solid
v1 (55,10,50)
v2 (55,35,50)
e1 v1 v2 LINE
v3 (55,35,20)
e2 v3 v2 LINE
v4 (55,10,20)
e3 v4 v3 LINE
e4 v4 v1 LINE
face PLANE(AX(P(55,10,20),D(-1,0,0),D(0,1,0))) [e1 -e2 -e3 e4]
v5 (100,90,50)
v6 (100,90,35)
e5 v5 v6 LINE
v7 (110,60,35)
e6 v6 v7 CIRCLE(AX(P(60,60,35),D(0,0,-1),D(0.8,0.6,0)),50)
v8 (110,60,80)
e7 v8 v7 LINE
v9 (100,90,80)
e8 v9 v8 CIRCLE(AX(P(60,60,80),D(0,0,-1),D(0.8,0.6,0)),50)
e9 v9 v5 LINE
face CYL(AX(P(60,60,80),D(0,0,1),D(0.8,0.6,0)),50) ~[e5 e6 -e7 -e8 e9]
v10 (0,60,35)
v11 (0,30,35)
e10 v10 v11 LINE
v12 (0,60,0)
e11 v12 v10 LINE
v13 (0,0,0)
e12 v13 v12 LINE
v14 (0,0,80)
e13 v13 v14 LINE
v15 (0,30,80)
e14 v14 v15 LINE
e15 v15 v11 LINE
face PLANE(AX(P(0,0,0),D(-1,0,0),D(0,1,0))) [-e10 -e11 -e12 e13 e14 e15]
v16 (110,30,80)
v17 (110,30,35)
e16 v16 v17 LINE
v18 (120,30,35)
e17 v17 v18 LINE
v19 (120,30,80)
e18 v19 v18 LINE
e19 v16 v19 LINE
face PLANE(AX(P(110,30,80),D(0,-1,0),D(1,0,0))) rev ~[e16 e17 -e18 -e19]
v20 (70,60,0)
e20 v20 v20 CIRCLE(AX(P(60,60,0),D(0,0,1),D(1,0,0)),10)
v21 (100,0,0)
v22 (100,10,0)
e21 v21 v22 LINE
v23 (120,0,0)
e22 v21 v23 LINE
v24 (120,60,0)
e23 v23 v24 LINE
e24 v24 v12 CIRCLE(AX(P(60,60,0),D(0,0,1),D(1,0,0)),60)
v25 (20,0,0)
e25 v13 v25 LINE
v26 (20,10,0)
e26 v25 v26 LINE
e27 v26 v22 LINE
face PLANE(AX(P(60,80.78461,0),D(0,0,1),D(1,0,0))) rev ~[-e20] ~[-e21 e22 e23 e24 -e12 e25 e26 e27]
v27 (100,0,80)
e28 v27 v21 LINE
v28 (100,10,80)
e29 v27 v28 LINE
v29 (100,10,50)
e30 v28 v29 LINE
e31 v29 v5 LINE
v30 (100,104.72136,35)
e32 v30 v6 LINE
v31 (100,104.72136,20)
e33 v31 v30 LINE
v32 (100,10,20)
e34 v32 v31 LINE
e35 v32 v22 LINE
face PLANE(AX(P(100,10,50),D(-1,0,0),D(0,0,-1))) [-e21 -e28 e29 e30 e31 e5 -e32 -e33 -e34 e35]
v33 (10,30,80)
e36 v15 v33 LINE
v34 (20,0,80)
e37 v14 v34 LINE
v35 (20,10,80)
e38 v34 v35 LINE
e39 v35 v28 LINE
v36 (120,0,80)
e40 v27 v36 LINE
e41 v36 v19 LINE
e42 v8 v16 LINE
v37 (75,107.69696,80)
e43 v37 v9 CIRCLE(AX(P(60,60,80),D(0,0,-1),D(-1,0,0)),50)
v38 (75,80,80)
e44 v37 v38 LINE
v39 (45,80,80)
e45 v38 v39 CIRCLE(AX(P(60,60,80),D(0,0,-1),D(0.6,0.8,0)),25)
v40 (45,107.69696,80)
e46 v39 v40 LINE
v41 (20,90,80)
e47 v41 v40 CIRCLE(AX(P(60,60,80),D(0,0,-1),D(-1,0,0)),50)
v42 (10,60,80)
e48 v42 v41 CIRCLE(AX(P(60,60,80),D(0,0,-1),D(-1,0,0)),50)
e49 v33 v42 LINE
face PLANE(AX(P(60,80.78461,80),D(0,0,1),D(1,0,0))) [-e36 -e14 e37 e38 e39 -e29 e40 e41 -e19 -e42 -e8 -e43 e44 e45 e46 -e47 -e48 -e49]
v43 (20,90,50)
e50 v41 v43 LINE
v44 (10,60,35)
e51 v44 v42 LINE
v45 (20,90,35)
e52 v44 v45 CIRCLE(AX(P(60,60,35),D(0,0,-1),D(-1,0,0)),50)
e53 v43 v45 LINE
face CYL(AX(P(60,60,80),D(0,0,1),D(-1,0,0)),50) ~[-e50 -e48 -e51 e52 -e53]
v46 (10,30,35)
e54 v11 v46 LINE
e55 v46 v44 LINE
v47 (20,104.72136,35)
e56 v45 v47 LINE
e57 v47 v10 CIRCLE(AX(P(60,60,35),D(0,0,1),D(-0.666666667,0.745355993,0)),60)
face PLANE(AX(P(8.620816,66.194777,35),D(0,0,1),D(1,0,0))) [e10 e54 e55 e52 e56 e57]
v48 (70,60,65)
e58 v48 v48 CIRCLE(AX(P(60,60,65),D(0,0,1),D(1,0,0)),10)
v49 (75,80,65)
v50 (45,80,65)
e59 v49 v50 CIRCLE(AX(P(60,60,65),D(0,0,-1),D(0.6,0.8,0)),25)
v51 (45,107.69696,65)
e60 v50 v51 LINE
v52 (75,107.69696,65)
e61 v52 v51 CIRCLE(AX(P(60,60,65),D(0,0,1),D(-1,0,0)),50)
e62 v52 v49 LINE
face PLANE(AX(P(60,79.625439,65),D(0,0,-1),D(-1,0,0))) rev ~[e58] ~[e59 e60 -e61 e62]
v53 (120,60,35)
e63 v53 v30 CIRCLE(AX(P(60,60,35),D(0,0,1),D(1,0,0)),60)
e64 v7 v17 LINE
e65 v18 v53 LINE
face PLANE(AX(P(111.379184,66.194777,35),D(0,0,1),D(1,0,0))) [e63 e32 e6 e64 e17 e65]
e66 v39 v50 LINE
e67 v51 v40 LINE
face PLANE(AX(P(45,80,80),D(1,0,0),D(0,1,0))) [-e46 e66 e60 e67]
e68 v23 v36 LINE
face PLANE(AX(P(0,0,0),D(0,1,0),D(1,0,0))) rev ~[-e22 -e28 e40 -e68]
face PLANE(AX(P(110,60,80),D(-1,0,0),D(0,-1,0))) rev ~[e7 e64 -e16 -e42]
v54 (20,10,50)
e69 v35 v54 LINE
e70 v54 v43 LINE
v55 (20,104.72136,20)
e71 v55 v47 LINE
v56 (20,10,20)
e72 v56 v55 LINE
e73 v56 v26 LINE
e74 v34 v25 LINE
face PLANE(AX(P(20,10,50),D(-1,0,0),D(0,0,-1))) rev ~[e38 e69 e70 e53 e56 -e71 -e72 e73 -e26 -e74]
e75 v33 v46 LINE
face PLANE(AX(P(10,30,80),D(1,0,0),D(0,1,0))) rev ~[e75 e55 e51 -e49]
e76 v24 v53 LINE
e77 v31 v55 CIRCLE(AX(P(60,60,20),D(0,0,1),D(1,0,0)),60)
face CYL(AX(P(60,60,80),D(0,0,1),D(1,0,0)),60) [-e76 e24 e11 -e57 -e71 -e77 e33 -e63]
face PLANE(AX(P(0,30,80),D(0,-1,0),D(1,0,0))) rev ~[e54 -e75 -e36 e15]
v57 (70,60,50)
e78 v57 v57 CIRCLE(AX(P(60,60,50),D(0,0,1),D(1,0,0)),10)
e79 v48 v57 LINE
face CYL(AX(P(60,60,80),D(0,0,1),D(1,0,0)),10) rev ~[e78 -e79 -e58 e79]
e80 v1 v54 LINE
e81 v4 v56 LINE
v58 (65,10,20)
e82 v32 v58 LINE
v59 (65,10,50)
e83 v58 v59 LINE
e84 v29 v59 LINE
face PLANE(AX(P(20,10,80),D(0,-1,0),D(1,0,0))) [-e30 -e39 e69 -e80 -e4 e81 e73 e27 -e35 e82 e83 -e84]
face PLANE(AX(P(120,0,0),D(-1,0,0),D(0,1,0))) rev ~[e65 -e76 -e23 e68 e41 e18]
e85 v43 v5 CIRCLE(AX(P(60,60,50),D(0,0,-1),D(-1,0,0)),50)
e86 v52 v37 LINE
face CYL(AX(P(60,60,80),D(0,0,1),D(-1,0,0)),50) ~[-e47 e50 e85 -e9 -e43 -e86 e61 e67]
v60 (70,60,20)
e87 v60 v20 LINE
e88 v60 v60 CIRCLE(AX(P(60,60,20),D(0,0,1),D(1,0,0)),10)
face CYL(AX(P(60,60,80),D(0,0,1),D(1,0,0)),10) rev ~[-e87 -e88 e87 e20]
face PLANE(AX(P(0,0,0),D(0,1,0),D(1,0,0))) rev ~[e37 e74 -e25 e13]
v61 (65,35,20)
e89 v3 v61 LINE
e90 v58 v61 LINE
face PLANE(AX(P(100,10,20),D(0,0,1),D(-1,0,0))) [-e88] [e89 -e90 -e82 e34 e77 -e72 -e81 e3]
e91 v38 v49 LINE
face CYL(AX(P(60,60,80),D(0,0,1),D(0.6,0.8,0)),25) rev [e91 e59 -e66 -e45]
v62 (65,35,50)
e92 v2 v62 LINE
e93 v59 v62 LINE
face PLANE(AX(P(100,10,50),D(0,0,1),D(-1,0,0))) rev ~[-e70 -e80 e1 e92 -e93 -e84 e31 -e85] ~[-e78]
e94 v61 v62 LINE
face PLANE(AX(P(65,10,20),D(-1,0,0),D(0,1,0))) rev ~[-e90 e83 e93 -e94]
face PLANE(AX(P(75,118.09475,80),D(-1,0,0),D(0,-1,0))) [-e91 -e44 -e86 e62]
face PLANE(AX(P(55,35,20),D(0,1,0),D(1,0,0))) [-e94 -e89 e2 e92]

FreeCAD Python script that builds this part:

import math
import FreeCAD as App
import Part
import Sketcher

V = App.Vector
Q = App.Units.Quantity

doc = App.newDocument("Part")
body = doc.addObject("PartDesign::Body", "Body")

sketch1 = body.newObject("Sketcher::SketchObject", "Sketch")
sketch1.AttachmentSupport = (doc.getObject("XY_Plane"), [""])
sketch1.MapMode = "FlatFace"
sketch1.addGeometry(Part.LineSegment(V(0, 60, 0), V(0, 0, 0)), False)
sketch1.addGeometry(Part.LineSegment(V(0, 0, 0), V(120, 0, 0)), False)
sketch1.addGeometry(Part.LineSegment(V(120, 0, 0), V(120, 60, 0)), False)
sketch1.addGeometry(Part.LineSegment(V(120, 60, 0), V(0, 60, 0)), False)
sketch1.addConstraint(Sketcher.Constraint("Coincident", 0, 2, 1, 1))
sketch1.addConstraint(Sketcher.Constraint("Coincident", 1, 2, 2, 1))
sketch1.addConstraint(Sketcher.Constraint("Coincident", 2, 2, 3, 1))
sketch1.addConstraint(Sketcher.Constraint("Coincident", 3, 2, 0, 1))
sketch1.addConstraint(Sketcher.Constraint("Vertical", 0))
sketch1.addConstraint(Sketcher.Constraint("Horizontal", 1))
sketch1.addConstraint(Sketcher.Constraint("Vertical", 2))
sketch1.addConstraint(Sketcher.Constraint("Horizontal", 3))
sketch1.addConstraint(Sketcher.Constraint("Coincident", 0, 2, -1, 1))
sketch1.addConstraint(Sketcher.Constraint("DistanceX", 1, 1, 1, 2, Q("120 mm")))
sketch1.addConstraint(Sketcher.Constraint("DistanceY", 0, 2, 0, 1, Q("60 mm")))
pad1 = body.newObject("PartDesign::Pad", "Pad")
pad1.Profile = sketch1
pad1.Length = 80

sketch2 = body.newObject("Sketcher::SketchObject", "Sketch001")
sketch2.AttachmentSupport = (doc.getObject("XY_Plane"), [""])
sketch2.MapMode = "FlatFace"
sketch2.AttachmentOffset = App.Placement(V(0, 0, 80), App.Rotation())
sketch2.addGeometry(Part.LineSegment(V(20, 10, 0), V(20, 0, 0)), False)
sketch2.addGeometry(Part.LineSegment(V(20, 0, 0), V(100, 0, 0)), False)
sketch2.addGeometry(Part.LineSegment(V(100, 0, 0), V(100, 10, 0)), False)
sketch2.addGeometry(Part.LineSegment(V(100, 10, 0), V(20, 10, 0)), False)
sketch2.addConstraint(Sketcher.Constraint("Coincident", 0, 2, 1, 1))
sketch2.addConstraint(Sketcher.Constraint("Coincident", 1, 2, 2, 1))
sketch2.addConstraint(Sketcher.Constraint("Coincident", 2, 2, 3, 1))
sketch2.addConstraint(Sketcher.Constraint("Coincident", 3, 2, 0, 1))
sketch2.addConstraint(Sketcher.Constraint("Vertical", 0))
sketch2.addConstraint(Sketcher.Constraint("Horizontal", 1))
sketch2.addConstraint(Sketcher.Constraint("Vertical", 2))
sketch2.addConstraint(Sketcher.Constraint("Horizontal", 3))
sketch2.addConstraint(Sketcher.Constraint("PointOnObject", 0, 2, -1))
sketch2.addConstraint(Sketcher.Constraint("DistanceX", 1, 1, 1, 2, Q("80 mm")))
sketch2.addConstraint(Sketcher.Constraint("DistanceY", 0, 2, 0, 1, Q("10 mm")))
sketch2.addConstraint(Sketcher.Constraint("DistanceX", -1, 1, 0, 2, Q("20 mm")))
pocket1 = body.newObject("PartDesign::Pocket", "Pocket")
pocket1.Profile = sketch2
pocket1.Length = 80

sketch3 = body.newObject("Sketcher::SketchObject", "Sketch002")
sketch3.AttachmentSupport = (doc.getObject("XY_Plane"), [""])
sketch3.MapMode = "FlatFace"
sketch3.AttachmentOffset = App.Placement(V(0, 0, 80), App.Rotation())
sketch3.addGeometry(Part.LineSegment(V(0, 60, 0), V(120, 60, 0)), False)
sketch3.addGeometry(Part.ArcOfCircle(Part.Circle(V(60, 60, 0), V(0, 0, 1), 60), math.radians(0), math.radians(180)), False)
sketch3.addConstraint(Sketcher.Constraint("Coincident", 0, 1, 1, 2))
sketch3.addConstraint(Sketcher.Constraint("Coincident", 1, 1, 0, 2))
sketch3.addConstraint(Sketcher.Constraint("Horizontal", 0))
sketch3.addConstraint(Sketcher.Constraint("PointOnObject", 0, 1, -2))
sketch3.addConstraint(Sketcher.Constraint("Horizontal", 1, 3, 0, 1))
sketch3.addConstraint(Sketcher.Constraint("Radius", 1, Q("60 mm")))
sketch3.addConstraint(Sketcher.Constraint("DistanceY", -1, 1, 1, 3, Q("60 mm")))
pad2 = body.newObject("PartDesign::Pad", "Pad001")
pad2.Profile = sketch3
pad2.Length = 80
pad2.Reversed = True

sketch4 = body.newObject("Sketcher::SketchObject", "Sketch003")
sketch4.AttachmentSupport = (doc.getObject("XY_Plane"), [""])
sketch4.MapMode = "FlatFace"
sketch4.AttachmentOffset = App.Placement(V(0, 0, 80), App.Rotation())
sketch4.addGeometry(Part.Circle(V(60, 60, 0), V(0, 0, 1), 10), False)
sketch4.addConstraint(Sketcher.Constraint("Diameter", 0, Q("20 mm")))
sketch4.addConstraint(Sketcher.Constraint("DistanceX", -1, 1, 0, 3, Q("60 mm")))
sketch4.addConstraint(Sketcher.Constraint("DistanceY", -1, 1, 0, 3, Q("60 mm")))
pocket2 = body.newObject("PartDesign::Pocket", "Pocket001")
pocket2.Profile = sketch4
pocket2.Length = 80

sketch5 = body.newObject("Sketcher::SketchObject", "Sketch004")
sketch5.AttachmentSupport = (doc.getObject("XY_Plane"), [""])
sketch5.MapMode = "FlatFace"
sketch5.AttachmentOffset = App.Placement(V(0, 0, 80), App.Rotation())
sketch5.addGeometry(Part.LineSegment(V(45, 118.09475, 0), V(45, 80, 0)), False)
sketch5.addGeometry(Part.ArcOfCircle(Part.Circle(V(60, 60, 0), V(0, 0, 1), 25), math.radians(126.869898), math.radians(413.130102)), False)
sketch5.addGeometry(Part.LineSegment(V(75, 80, 0), V(75, 118.09475, 0)), False)
sketch5.addGeometry(Part.ArcOfCircle(Part.Circle(V(60, 63.315465, 0), V(0, 0, 1), 56.795863), math.radians(74.686296), math.radians(105.313704)), False)
sketch5.addConstraint(Sketcher.Constraint("Coincident", 0, 2, 1, 1))
sketch5.addConstraint(Sketcher.Constraint("Coincident", 1, 2, 2, 1))
sketch5.addConstraint(Sketcher.Constraint("Coincident", 2, 2, 3, 1))
sketch5.addConstraint(Sketcher.Constraint("Coincident", 3, 2, 0, 1))
sketch5.addConstraint(Sketcher.Constraint("Vertical", 0))
sketch5.addConstraint(Sketcher.Constraint("Vertical", 2))
sketch5.addConstraint(Sketcher.Constraint("Horizontal", 0, 2, 1, 2))
sketch5.addConstraint(Sketcher.Constraint("Horizontal", 2, 2, 3, 2))
sketch5.addConstraint(Sketcher.Constraint("Radius", 1, Q("25 mm")))
sketch5.addConstraint(Sketcher.Constraint("DistanceX", -1, 1, 1, 3, Q("60 mm")))
sketch5.addConstraint(Sketcher.Constraint("DistanceY", -1, 1, 1, 3, Q("60 mm")))
sketch5.addConstraint(Sketcher.Constraint("DistanceX", -1, 1, 0, 2, Q("45 mm")))
sketch5.addConstraint(Sketcher.Constraint("Radius", 3, Q("56.795863 mm")))
sketch5.addConstraint(Sketcher.Constraint("DistanceY", 0, 2, 0, 1, Q("38.09475 mm")))
pocket3 = body.newObject("PartDesign::Pocket", "Pocket002")
pocket3.Profile = sketch5
pocket3.Length = 15

sketch6 = body.newObject("Sketcher::SketchObject", "Sketch005")
sketch6.AttachmentSupport = (doc.getObject("XY_Plane"), [""])
sketch6.MapMode = "FlatFace"
sketch6.AttachmentOffset = App.Placement(V(0, 0, 80), App.Rotation())
sketch6.addGeometry(Part.LineSegment(V(10, 30, 0), V(10, 60, 0)), False)
sketch6.addGeometry(Part.ArcOfCircle(Part.Circle(V(60, 60, 0), V(0, 0, 1), 50), math.radians(143.130102), math.radians(180)), False)
sketch6.addGeometry(Part.LineSegment(V(20, 90, 0), V(20, 104.72136, 0)), False)
sketch6.addGeometry(Part.ArcOfCircle(Part.Circle(V(60, 60, 0), V(0, 0, 1), 60), math.radians(131.810315), math.radians(180)), False)
sketch6.addGeometry(Part.LineSegment(V(0, 60, 0), V(0, 30, 0)), False)
sketch6.addGeometry(Part.LineSegment(V(0, 30, 0), V(10, 30, 0)), False)
sketch6.addGeometry(Part.LineSegment(V(100, 104.72136, 0), V(100, 90, 0)), False)
sketch6.addGeometry(Part.ArcOfCircle(Part.Circle(V(60, 60, 0), V(0, 0, 1), 50), math.radians(0), math.radians(36.869898)), False)
sketch6.addGeometry(Part.LineSegment(V(110, 60, 0), V(110, 30, 0)), False)
sketch6.addGeometry(Part.LineSegment(V(110, 30, 0), V(120, 30, 0)), False)
sketch6.addGeometry(Part.LineSegment(V(120, 30, 0), V(120, 60, 0)), False)
sketch6.addGeometry(Part.ArcOfCircle(Part.Circle(V(60, 60, 0), V(0, 0, 1), 60), math.radians(0), math.radians(48.189685)), False)
sketch6.addConstraint(Sketcher.Constraint("Tangent", 0, 2, 1, 2))
sketch6.addConstraint(Sketcher.Constraint("Coincident", 1, 1, 2, 1))
sketch6.addConstraint(Sketcher.Constraint("Coincident", 2, 2, 3, 1))
sketch6.addConstraint(Sketcher.Constraint("Tangent", 3, 2, 4, 1))
sketch6.addConstraint(Sketcher.Constraint("Coincident", 4, 2, 5, 1))
sketch6.addConstraint(Sketcher.Constraint("Coincident", 5, 2, 0, 1))
sketch6.addConstraint(Sketcher.Constraint("Coincident", 6, 2, 7, 2))
sketch6.addConstraint(Sketcher.Constraint("Tangent", 7, 1, 8, 1))
sketch6.addConstraint(Sketcher.Constraint("Coincident", 8, 2, 9, 1))
sketch6.addConstraint(Sketcher.Constraint("Coincident", 9, 2, 10, 1))
sketch6.addConstraint(Sketcher.Constraint("Tangent", 10, 2, 11, 1))
sketch6.addConstraint(Sketcher.Constraint("Coincident", 11, 2, 6, 1))
sketch6.addConstraint(Sketcher.Constraint("Vertical", 0))
sketch6.addConstraint(Sketcher.Constraint("Vertical", 2))
sketch6.addConstraint(Sketcher.Constraint("Vertical", 4))
sketch6.addConstraint(Sketcher.Constraint("Horizontal", 5))
sketch6.addConstraint(Sketcher.Constraint("Vertical", 6))
sketch6.addConstraint(Sketcher.Constraint("Vertical", 8))
sketch6.addConstraint(Sketcher.Constraint("Horizontal", 9))
sketch6.addConstraint(Sketcher.Constraint("Vertical", 10))
sketch6.addConstraint(Sketcher.Constraint("Coincident", 3, 3, 1, 3))
sketch6.addConstraint(Sketcher.Constraint("Coincident", 7, 3, 1, 3))
sketch6.addConstraint(Sketcher.Constraint("Coincident", 11, 3, 1, 3))
sketch6.addConstraint(Sketcher.Constraint("Equal", 1, 7))
sketch6.addConstraint(Sketcher.Constraint("Equal", 3, 11))
sketch6.addConstraint(Sketcher.Constraint("PointOnObject", 3, 2, -2))
sketch6.addConstraint(Sketcher.Constraint("Horizontal", 1, 1, 6, 2))
sketch6.addConstraint(Sketcher.Constraint("Horizontal", 5, 2, 8, 2))
sketch6.addConstraint(Sketcher.Constraint("Radius", 1, Q("50 mm")))
sketch6.addConstraint(Sketcher.Constraint("Radius", 3, Q("60 mm")))
sketch6.addConstraint(Sketcher.Constraint("DistanceY", 0, 1, 0, 2, Q("30 mm")))
sketch6.addConstraint(Sketcher.Constraint("DistanceY", -1, 1, 1, 3, Q("60 mm")))
sketch6.addConstraint(Sketcher.Constraint("DistanceX", -1, 1, 1, 1, Q("20 mm")))
pocket4 = body.newObject("PartDesign::Pocket", "Pocket003")
pocket4.Profile = sketch6
pocket4.Length = 45

sketch7 = body.newObject("Sketcher::SketchObject", "Sketch006")
sketch7.AttachmentSupport = (doc.getObject("XY_Plane"), [""])
sketch7.MapMode = "FlatFace"
sketch7.AttachmentOffset = App.Placement(V(0, 0, 80), App.Rotation())
sketch7.addGeometry(Part.LineSegment(V(0, 60, 0), V(10, 60, 0)), False)
sketch7.addGeometry(Part.ArcOfCircle(Part.Circle(V(60, 60, 0), V(0, 0, 1), 50), math.radians(0), math.radians(180)), False)
sketch7.addGeometry(Part.LineSegment(V(110, 60, 0), V(120, 60, 0)), False)
sketch7.addGeometry(Part.ArcOfCircle(Part.Circle(V(60, 60, 0), V(0, 0, 1), 60), math.radians(0), math.radians(180)), False)
sketch7.addConstraint(Sketcher.Constraint("Coincident", 0, 2, 1, 2))
sketch7.addConstraint(Sketcher.Constraint("Coincident", 1, 1, 2, 1))
sketch7.addConstraint(Sketcher.Constraint("Coincident", 2, 2, 3, 1))
sketch7.addConstraint(Sketcher.Constraint("Coincident", 3, 2, 0, 1))
sketch7.addConstraint(Sketcher.Constraint("Horizontal", 0))
sketch7.addConstraint(Sketcher.Constraint("Horizontal", 2))
sketch7.addConstraint(Sketcher.Constraint("Coincident", 3, 3, 1, 3))
sketch7.addConstraint(Sketcher.Constraint("PointOnObject", 3, 2, -2))
sketch7.addConstraint(Sketcher.Constraint("Horizontal", 3, 3, 0, 2))
sketch7.addConstraint(Sketcher.Constraint("Horizontal", 0, 2, 1, 1))
sketch7.addConstraint(Sketcher.Constraint("Radius", 1, Q("50 mm")))
sketch7.addConstraint(Sketcher.Constraint("Radius", 3, Q("60 mm")))
sketch7.addConstraint(Sketcher.Constraint("DistanceY", -1, 1, 1, 3, Q("60 mm")))
pocket5 = body.newObject("PartDesign::Pocket", "Pocket004")
pocket5.Profile = sketch7
pocket5.Length = 30

sketch8 = body.newObject("Sketcher::SketchObject", "Sketch007")
sketch8.AttachmentSupport = (doc.getObject("XZ_Plane"), [""])
sketch8.MapMode = "FlatFace"
sketch8.AttachmentOffset = App.Placement(V(0, 0, -10), App.Rotation())
sketch8.addGeometry(Part.LineSegment(V(100, 20, 0), V(100, 50, 0)), False)
sketch8.addGeometry(Part.LineSegment(V(100, 50, 0), V(20, 50, 0)), False)
sketch8.addGeometry(Part.LineSegment(V(20, 50, 0), V(20, 20, 0)), False)
sketch8.addGeometry(Part.LineSegment(V(20, 20, 0), V(100, 20, 0)), False)
sketch8.addConstraint(Sketcher.Constraint("Coincident", 0, 2, 1, 1))
sketch8.addConstraint(Sketcher.Constraint("Coincident", 1, 2, 2, 1))
sketch8.addConstraint(Sketcher.Constraint("Coincident", 2, 2, 3, 1))
sketch8.addConstraint(Sketcher.Constraint("Coincident", 3, 2, 0, 1))
sketch8.addConstraint(Sketcher.Constraint("Vertical", 0))
sketch8.addConstraint(Sketcher.Constraint("Horizontal", 1))
sketch8.addConstraint(Sketcher.Constraint("Vertical", 2))
sketch8.addConstraint(Sketcher.Constraint("Horizontal", 3))
sketch8.addConstraint(Sketcher.Constraint("DistanceX", 1, 2, 1, 1, Q("80 mm")))
sketch8.addConstraint(Sketcher.Constraint("DistanceY", 0, 1, 0, 2, Q("30 mm")))
sketch8.addConstraint(Sketcher.Constraint("DistanceX", -1, 1, 0, 2, Q("100 mm")))
sketch8.addConstraint(Sketcher.Constraint("DistanceY", -1, 1, 0, 2, Q("50 mm")))
pocket6 = body.newObject("PartDesign::Pocket", "Pocket005")
pocket6.Profile = sketch8
pocket6.Length = 950

sketch9 = body.newObject("Sketcher::SketchObject", "Sketch008")
sketch9.AttachmentSupport = (doc.getObject("XY_Plane"), [""])
sketch9.MapMode = "FlatFace"
sketch9.AttachmentOffset = App.Placement(V(0, 0, 20), App.Rotation())
sketch9.addGeometry(Part.LineSegment(V(55, 35, 0), V(55, 10, 0)), False)
sketch9.addGeometry(Part.LineSegment(V(55, 10, 0), V(65, 10, 0)), False)
sketch9.addGeometry(Part.LineSegment(V(65, 10, 0), V(65, 35, 0)), False)
sketch9.addGeometry(Part.LineSegment(V(65, 35, 0), V(55, 35, 0)), False)
sketch9.addConstraint(Sketcher.Constraint("Coincident", 0, 2, 1, 1))
sketch9.addConstraint(Sketcher.Constraint("Coincident", 1, 2, 2, 1))
sketch9.addConstraint(Sketcher.Constraint("Coincident", 2, 2, 3, 1))
sketch9.addConstraint(Sketcher.Constraint("Coincident", 3, 2, 0, 1))
sketch9.addConstraint(Sketcher.Constraint("Vertical", 0))
sketch9.addConstraint(Sketcher.Constraint("Horizontal", 1))
sketch9.addConstraint(Sketcher.Constraint("Vertical", 2))
sketch9.addConstraint(Sketcher.Constraint("Horizontal", 3))
sketch9.addConstraint(Sketcher.Constraint("DistanceX", 1, 1, 1, 2, Q("10 mm")))
sketch9.addConstraint(Sketcher.Constraint("DistanceY", 0, 2, 0, 1, Q("25 mm")))
sketch9.addConstraint(Sketcher.Constraint("DistanceX", -1, 1, 0, 2, Q("55 mm")))
sketch9.addConstraint(Sketcher.Constraint("DistanceY", -1, 1, 0, 2, Q("10 mm")))
pad3 = body.newObject("PartDesign::Pad", "Pad002")
pad3.Profile = sketch9
pad3.Length = 30

doc.recompute()
